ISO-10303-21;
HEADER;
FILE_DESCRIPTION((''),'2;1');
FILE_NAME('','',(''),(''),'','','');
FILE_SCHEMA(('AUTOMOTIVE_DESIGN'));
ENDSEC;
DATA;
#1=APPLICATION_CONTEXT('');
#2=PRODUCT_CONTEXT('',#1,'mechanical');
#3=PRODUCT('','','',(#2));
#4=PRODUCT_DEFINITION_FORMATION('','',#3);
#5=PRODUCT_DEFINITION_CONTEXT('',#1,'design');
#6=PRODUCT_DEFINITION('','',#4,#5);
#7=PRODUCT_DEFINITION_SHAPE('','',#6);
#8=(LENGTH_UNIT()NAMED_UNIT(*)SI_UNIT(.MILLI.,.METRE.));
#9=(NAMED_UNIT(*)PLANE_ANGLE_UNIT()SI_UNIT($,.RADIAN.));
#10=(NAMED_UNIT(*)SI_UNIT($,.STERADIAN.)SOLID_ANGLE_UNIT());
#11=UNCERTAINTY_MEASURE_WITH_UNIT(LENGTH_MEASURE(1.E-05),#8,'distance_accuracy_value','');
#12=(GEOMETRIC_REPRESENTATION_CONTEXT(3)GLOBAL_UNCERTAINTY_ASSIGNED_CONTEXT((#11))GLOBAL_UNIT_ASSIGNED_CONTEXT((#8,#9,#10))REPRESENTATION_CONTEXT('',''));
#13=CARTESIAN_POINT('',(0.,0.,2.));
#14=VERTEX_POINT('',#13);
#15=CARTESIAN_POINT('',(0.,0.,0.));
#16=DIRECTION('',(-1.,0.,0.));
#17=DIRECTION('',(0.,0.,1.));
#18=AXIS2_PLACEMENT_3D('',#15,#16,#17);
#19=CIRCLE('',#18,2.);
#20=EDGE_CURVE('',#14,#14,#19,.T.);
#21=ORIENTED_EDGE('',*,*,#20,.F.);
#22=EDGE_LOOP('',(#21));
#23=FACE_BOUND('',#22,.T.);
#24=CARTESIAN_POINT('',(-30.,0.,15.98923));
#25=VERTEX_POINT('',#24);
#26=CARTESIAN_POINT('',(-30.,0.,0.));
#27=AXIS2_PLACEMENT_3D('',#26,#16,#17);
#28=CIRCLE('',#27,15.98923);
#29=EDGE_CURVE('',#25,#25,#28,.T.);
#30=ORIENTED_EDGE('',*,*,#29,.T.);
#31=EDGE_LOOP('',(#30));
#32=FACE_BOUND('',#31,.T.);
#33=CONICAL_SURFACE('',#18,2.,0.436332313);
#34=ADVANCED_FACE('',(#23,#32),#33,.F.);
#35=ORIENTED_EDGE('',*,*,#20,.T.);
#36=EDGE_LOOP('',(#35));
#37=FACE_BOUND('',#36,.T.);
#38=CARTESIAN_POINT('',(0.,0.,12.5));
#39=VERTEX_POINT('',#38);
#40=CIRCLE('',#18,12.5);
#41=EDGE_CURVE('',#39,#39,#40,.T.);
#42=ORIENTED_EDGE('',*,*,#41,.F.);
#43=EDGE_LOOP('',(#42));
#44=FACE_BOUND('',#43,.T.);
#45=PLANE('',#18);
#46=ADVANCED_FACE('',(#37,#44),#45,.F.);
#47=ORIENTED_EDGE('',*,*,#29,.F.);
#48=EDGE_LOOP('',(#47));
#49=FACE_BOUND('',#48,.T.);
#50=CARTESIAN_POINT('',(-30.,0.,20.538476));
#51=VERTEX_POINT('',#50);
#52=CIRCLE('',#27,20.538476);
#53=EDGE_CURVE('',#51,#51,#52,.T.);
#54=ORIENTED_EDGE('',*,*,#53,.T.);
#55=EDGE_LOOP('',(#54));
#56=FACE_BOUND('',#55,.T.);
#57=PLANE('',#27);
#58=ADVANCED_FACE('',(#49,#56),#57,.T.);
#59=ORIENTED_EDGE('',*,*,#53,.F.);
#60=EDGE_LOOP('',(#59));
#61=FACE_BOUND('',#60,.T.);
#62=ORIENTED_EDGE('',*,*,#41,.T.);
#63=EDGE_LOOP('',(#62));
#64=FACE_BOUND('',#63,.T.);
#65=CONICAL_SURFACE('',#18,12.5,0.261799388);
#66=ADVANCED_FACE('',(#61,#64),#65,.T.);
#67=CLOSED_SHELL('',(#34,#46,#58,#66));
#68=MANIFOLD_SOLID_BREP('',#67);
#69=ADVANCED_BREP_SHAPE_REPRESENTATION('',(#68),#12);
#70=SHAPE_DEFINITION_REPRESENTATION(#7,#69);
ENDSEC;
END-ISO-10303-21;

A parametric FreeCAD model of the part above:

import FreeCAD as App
import Part
import Sketcher

V = App.Vector

doc = App.newDocument("Part")
body = doc.addObject("PartDesign::Body", "Body")

sketch1 = body.newObject("Sketcher::SketchObject", "Sketch")
sketch1.AttachmentSupport = (doc.getObject("YZ_Plane"), [""])
sketch1.MapMode = "FlatFace"
sketch1.addGeometry(Part.Circle(V(0, 0, 0), V(0, 0, 1), 12), False)
sketch1.addConstraint(Sketcher.Constraint("Coincident", 0, 3, -1, 1))
sketch1.addConstraint(Sketcher.Constraint("Diameter", 0, 25.0))
pad1 = body.newObject("PartDesign::Pad", "Pad")
pad1.Profile = sketch1
pad1.Length = 30
pad1.Reversed = True
pad1.TaperAngle = 15

sketch2 = body.newObject("Sketcher::SketchObject", "Sketch001")
sketch2.AttachmentSupport = (doc.getObject("YZ_Plane"), [""])
sketch2.MapMode = "FlatFace"
sketch2.addGeometry(Part.Circle(V(0, 0, 0), V(0, 0, 1), 2), False)
sketch2.addConstraint(Sketcher.Constraint("Coincident", 0, 3, -1, 1))
sketch2.addConstraint(Sketcher.Constraint("Diameter", 0, 4.0))
pocket1 = body.newObject("PartDesign::Pocket", "Pocket")
pocket1.Profile = sketch2
pocket1.Length = 30
pocket1.TaperAngle = 25

doc.recompute()
